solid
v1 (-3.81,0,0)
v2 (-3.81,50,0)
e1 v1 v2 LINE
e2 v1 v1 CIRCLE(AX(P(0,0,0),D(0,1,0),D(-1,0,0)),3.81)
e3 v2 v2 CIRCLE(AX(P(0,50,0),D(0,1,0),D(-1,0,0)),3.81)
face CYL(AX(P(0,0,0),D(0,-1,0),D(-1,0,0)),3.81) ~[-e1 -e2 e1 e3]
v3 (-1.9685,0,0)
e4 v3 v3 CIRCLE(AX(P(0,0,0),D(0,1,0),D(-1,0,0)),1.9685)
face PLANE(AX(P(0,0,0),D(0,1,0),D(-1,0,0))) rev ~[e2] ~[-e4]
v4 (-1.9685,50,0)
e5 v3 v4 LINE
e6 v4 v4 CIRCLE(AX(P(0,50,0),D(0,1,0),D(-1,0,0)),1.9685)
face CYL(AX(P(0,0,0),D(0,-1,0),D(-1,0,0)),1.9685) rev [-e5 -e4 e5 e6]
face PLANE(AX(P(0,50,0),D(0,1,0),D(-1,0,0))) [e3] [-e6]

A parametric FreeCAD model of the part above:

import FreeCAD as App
import Part
import Sketcher

V = App.Vector
Q = App.Units.Quantity

doc = App.newDocument("Part")
body = doc.addObject("PartDesign::Body", "Body")

sketch1 = body.newObject("Sketcher::SketchObject", "Sketch")
sketch1.AttachmentSupport = (doc.getObject("XZ_Plane"), [""])
sketch1.MapMode = "FlatFace"
sketch1.addGeometry(Part.Circle(V(0, 0, 0), V(0, 0, 1), 3.81), False)
sketch1.addGeometry(Part.Circle(V(0, 0, 0), V(0, 0, 1), 1.9685), False)
sketch1.addConstraint(Sketcher.Constraint("Coincident", 0, 3, -1, 1))
sketch1.addConstraint(Sketcher.Constraint("Coincident", 1, 3, -1, 1))
sketch1.addConstraint(Sketcher.Constraint("Diameter", 0, Q("0.3 in")))
sketch1.addConstraint(Sketcher.Constraint("Diameter", 1, Q("0.155 in")))
pad1 = body.newObject("PartDesign::Pad", "Pad")
pad1.Profile = sketch1
pad1.Length = Q("1.9685039 in")
pad1.Reversed = True

doc.recompute()
